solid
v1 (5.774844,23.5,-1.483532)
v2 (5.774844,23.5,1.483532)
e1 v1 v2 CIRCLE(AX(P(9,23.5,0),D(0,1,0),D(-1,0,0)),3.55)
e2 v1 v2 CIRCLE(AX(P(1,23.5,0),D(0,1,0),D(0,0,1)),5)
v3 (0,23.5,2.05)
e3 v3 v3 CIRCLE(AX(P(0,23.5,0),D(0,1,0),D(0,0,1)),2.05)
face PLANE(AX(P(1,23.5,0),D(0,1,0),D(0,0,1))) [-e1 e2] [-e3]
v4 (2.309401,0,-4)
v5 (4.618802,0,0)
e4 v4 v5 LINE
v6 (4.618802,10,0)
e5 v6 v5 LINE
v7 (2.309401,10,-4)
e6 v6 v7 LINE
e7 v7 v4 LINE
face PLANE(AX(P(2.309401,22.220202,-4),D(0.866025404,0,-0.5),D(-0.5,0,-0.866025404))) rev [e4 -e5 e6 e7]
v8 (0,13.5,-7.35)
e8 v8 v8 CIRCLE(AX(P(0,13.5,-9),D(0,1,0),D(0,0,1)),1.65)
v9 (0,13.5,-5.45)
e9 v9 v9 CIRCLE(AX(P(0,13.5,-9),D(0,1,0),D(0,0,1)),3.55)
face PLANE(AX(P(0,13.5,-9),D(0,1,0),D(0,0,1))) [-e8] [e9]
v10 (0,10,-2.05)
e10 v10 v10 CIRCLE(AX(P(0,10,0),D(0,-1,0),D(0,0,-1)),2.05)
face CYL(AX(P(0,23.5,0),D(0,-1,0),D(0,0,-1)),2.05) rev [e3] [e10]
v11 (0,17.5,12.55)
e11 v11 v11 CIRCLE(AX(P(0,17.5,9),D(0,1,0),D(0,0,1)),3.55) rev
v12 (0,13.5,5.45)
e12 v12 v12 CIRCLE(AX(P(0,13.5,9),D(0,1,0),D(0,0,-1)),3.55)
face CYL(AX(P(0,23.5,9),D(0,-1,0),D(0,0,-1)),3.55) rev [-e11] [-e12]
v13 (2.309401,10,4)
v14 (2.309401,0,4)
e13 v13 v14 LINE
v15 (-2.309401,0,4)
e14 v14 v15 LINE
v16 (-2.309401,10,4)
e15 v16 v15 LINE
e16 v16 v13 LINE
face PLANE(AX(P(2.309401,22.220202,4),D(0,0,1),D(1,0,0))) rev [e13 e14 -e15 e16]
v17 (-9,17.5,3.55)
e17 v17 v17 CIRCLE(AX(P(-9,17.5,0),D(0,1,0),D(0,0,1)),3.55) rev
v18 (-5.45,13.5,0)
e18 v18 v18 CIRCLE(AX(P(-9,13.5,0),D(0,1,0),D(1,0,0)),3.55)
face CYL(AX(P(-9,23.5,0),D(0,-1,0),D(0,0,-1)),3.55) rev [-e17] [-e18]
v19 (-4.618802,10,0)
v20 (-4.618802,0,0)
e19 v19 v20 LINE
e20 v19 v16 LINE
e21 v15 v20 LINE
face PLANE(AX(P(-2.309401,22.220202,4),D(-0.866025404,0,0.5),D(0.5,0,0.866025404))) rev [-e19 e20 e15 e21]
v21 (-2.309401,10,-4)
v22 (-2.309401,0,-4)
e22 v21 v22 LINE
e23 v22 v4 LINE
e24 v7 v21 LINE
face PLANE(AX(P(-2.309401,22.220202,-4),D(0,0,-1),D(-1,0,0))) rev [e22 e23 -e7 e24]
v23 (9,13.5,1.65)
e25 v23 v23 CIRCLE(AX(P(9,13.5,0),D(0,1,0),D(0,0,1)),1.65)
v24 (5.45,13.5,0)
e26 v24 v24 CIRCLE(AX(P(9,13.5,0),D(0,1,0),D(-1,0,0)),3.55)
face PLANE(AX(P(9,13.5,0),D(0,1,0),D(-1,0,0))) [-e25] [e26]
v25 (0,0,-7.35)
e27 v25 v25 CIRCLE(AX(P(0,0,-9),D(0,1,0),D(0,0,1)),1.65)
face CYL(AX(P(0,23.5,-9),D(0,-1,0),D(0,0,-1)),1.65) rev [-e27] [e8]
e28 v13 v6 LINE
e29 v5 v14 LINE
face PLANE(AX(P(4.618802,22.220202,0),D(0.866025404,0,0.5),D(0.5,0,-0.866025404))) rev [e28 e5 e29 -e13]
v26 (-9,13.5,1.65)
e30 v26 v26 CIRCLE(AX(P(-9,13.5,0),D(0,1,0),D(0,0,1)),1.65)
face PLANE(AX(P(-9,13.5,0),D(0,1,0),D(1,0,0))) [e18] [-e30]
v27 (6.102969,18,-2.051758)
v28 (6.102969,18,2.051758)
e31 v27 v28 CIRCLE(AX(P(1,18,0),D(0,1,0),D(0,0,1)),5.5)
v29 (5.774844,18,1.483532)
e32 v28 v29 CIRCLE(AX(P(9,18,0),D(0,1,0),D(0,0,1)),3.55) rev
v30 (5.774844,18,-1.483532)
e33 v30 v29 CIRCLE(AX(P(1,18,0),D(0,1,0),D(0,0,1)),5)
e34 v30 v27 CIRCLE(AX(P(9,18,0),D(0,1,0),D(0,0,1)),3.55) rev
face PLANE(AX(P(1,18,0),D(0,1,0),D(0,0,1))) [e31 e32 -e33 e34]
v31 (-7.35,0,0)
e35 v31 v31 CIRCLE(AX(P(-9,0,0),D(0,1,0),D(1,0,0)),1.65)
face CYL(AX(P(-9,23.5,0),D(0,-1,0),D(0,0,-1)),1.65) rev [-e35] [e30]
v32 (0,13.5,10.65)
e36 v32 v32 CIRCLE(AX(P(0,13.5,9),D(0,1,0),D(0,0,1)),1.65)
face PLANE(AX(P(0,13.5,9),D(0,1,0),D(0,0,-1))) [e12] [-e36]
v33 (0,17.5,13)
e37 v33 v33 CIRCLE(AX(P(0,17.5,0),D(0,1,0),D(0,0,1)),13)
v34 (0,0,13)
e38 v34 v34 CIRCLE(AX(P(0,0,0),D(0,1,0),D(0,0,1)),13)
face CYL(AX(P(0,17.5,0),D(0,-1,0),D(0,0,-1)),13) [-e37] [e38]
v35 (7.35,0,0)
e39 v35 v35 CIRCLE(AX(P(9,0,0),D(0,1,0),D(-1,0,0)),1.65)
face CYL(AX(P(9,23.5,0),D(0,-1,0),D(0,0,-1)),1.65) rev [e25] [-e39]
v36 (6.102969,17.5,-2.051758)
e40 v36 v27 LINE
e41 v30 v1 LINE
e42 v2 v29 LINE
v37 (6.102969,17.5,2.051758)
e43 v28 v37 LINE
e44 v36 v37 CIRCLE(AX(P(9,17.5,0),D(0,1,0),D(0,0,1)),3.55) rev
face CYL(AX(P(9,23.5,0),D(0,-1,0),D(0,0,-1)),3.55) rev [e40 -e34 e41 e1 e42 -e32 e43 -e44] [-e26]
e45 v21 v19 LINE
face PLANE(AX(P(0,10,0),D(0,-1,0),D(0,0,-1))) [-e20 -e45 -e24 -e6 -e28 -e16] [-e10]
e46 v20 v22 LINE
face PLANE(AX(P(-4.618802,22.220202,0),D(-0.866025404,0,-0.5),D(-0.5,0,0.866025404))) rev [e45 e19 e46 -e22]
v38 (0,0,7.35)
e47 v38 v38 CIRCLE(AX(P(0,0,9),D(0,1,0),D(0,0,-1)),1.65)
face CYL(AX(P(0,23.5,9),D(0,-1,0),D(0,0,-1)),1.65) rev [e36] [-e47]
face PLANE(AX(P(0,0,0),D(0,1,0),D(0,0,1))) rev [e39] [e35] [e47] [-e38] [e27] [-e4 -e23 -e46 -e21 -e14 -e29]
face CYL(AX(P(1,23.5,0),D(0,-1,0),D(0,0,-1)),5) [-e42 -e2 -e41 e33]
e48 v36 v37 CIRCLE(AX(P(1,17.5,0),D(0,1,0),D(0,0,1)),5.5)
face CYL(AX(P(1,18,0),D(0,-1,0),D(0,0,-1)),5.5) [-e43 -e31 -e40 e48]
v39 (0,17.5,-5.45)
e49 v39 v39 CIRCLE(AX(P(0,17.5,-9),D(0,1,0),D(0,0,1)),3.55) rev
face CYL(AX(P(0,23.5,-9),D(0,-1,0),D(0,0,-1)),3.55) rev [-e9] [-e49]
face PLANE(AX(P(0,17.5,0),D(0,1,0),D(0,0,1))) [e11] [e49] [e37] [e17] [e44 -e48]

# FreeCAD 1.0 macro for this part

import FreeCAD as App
import Part
import Sketcher
from FreeCAD import Vector
Q = App.Units.Quantity


def add_polygon(sketch, points):
    """Adds a closed chain of lines whose ends are joined by coincident constraints."""
    first, n = sketch.GeometryCount, len(points)
    for a, b in zip(points, points[1:] + points[:1]):
        sketch.addGeometry(Part.LineSegment(App.Vector(*a, 0), App.Vector(*b, 0)), False)
    for i in range(n):
        sketch.addConstraint(Sketcher.Constraint("Coincident", first + i, 2, first + (i + 1) % n, 1))

doc = App.newDocument("Part")
params = doc.addObject("Spreadsheet::Sheet", "Params")
for row, (alias, value) in enumerate([
    ("sketch1_diameter", "26 mm"),
    ("pad1_length", "17.5 mm"),
    ("sketch2_diameter", "10 mm"),
    ("pad2_length", "6 mm"),
    ("sketch3_diameter", "11 mm"),
    ("pad3_length", "0.5 mm"),
    ("sketch4_diameter", "3.3 mm"),
    ("sketch5_diameter", "7.1 mm"),
    ("pocket2_length", "11 mm"),
    ("sketch6_diameter", "4.1 mm"),
    ("sketch7_diameter", "5.5 mm"),
    ("pocket4_length", "10 mm"),
    ("pocket5_length", "10 mm"),
], start=1):
    params.set(f"A{row}", alias)
    params.set(f"B{row}", "=" + value)
    params.setAlias(f"B{row}", alias)

body = doc.addObject("PartDesign::Body", "Body")

# Sketch on XZ plane
sketch1 = doc.addObject("Sketcher::SketchObject", "Sketch")
body.addObject(sketch1)
sketch1.AttachmentSupport = (doc.XZ_Plane, [""])
sketch1.MapMode = "FlatFace"
sketch1.addGeometry(Part.Circle(Vector(0, 0, 0), Vector(0, 0, 1), 13), False)
sketch1.addConstraint([
    Sketcher.Constraint("Coincident", 0, 3, -1, 1),
    Sketcher.Constraint("Diameter", 0, 26.0),
])
sketch1.setExpression("Constraints[1]", "Params.sketch1_diameter")
pad1 = doc.addObject("PartDesign::Pad", "Pad")
body.addObject(pad1)
pad1.Profile = sketch1
pad1.setExpression("Length", "Params.pad1_length")
pad1.Reversed = True

# Sketch on XZ plane
sketch2 = doc.addObject("Sketcher::SketchObject", "Sketch001")
body.addObject(sketch2)
sketch2.AttachmentSupport = (doc.XZ_Plane, [""])
sketch2.MapMode = "FlatFace"
sketch2.AttachmentOffset = App.Placement(Vector(0, 0, -17.5), App.Rotation())
sketch2.addGeometry(Part.Circle(Vector(1, 0, 0), Vector(0, 0, 1), 5), False)
sketch2.addConstraint([
    Sketcher.Constraint("PointOnObject", 0, 3, -1),
    Sketcher.Constraint("Diameter", 0, 10.0),
    Sketcher.Constraint("DistanceX", -1, 1, 0, 3, 1.0),
])
sketch2.setExpression("Constraints[1]", "Params.sketch2_diameter")
pad2 = doc.addObject("PartDesign::Pad", "Pad001")
body.addObject(pad2)
pad2.Profile = sketch2
pad2.setExpression("Length", "Params.pad2_length")
pad2.Reversed = True

# Sketch on XZ plane
sketch3 = doc.addObject("Sketcher::SketchObject", "Sketch002")
body.addObject(sketch3)
sketch3.AttachmentSupport = (doc.XZ_Plane, [""])
sketch3.MapMode = "FlatFace"
sketch3.AttachmentOffset = App.Placement(Vector(0, 0, -17.5), App.Rotation())
sketch3.addGeometry(Part.Circle(Vector(1, 0, 0), Vector(0, 0, 1), 6), False)
sketch3.addConstraint([
    Sketcher.Constraint("PointOnObject", 0, 3, -1),
    Sketcher.Constraint("Diameter", 0, 11.0),
    Sketcher.Constraint("DistanceX", -1, 1, 0, 3, 1.0),
])
sketch3.setExpression("Constraints[1]", "Params.sketch3_diameter")
pad3 = doc.addObject("PartDesign::Pad", "Pad002")
body.addObject(pad3)
pad3.Profile = sketch3
pad3.setExpression("Length", "Params.pad3_length")
pad3.Reversed = True

# Sketch on XZ plane
sketch4 = doc.addObject("Sketcher::SketchObject", "Sketch003")
body.addObject(sketch4)
sketch4.AttachmentSupport = (doc.XZ_Plane, [""])
sketch4.MapMode = "FlatFace"
sketch4.addGeometry(Part.Circle(Vector(0, -9, 0), Vector(0, 0, 1), 1.6), False)
sketch4.addConstraint([
    Sketcher.Constraint("PointOnObject", 0, 3, -2),
    Sketcher.Constraint("Diameter", 0, 3.3),
    Sketcher.Constraint("DistanceY", 0, 3, -1, 1, 9.0),
])
sketch4.setExpression("Constraints[1]", "Params.sketch4_diameter")
pocket1 = doc.addObject("PartDesign::Pocket", "Pocket")
body.addObject(pocket1)
pocket1.Profile = sketch4
pocket1.Type = "ThroughAll"

# Sketch on XZ plane
sketch5 = doc.addObject("Sketcher::SketchObject", "Sketch004")
body.addObject(sketch5)
sketch5.AttachmentSupport = (doc.XZ_Plane, [""])
sketch5.MapMode = "FlatFace"
sketch5.AttachmentOffset = App.Placement(Vector(0, 0, -13.5), App.Rotation())
sketch5.addGeometry(Part.Circle(Vector(0, -9, 0), Vector(0, 0, 1), 3.5), False)
sketch5.addConstraint([
    Sketcher.Constraint("PointOnObject", 0, 3, -2),
    Sketcher.Constraint("Diameter", 0, 7.1),
    Sketcher.Constraint("DistanceY", 0, 3, -1, 1, 9.0),
])
sketch5.setExpression("Constraints[1]", "Params.sketch5_diameter")
pocket2 = doc.addObject("PartDesign::Pocket", "Pocket001")
body.addObject(pocket2)
pocket2.Profile = sketch5
pocket2.setExpression("Length", "Params.pocket2_length")
doc.recompute()

polarpattern = doc.addObject("PartDesign::PolarPattern", "PolarPattern")
body.addObject(polarpattern)
polarpattern.Originals = [pocket1, pocket2]
polarpattern.Axis = (doc.Y_Axis, [""])
polarpattern.Angle = 360
polarpattern.Occurrences = 4
body.Tip = polarpattern

# Sketch on XZ plane
sketch6 = doc.addObject("Sketcher::SketchObject", "Sketch005")
body.addObject(sketch6)
sketch6.AttachmentSupport = (doc.XZ_Plane, [""])
sketch6.MapMode = "FlatFace"
sketch6.addGeometry(Part.Circle(Vector(0, 0, 0), Vector(0, 0, 1), 2), False)
sketch6.addConstraint([
    Sketcher.Constraint("Coincident", 0, 3, -1, 1),
    Sketcher.Constraint("Diameter", 0, 4.1),
])
sketch6.setExpression("Constraints[1]", "Params.sketch6_diameter")
pocket3 = doc.addObject("PartDesign::Pocket", "Pocket002")
body.addObject(pocket3)
pocket3.Profile = sketch6
pocket3.Type = "ThroughAll"

# Sketch on XZ plane
sketch7 = doc.addObject("Sketcher::SketchObject", "Sketch006")
body.addObject(sketch7)
sketch7.AttachmentSupport = (doc.XZ_Plane, [""])
sketch7.MapMode = "FlatFace"
sketch7.addGeometry(Part.Circle(Vector(0, 0, 0), Vector(0, 0, 1), 2.8), False)
sketch7.addConstraint([
    Sketcher.Constraint("Coincident", 0, 3, -1, 1),
    Sketcher.Constraint("Diameter", 0, 5.5),
])
sketch7.setExpression("Constraints[1]", "Params.sketch7_diameter")
pocket4 = doc.addObject("PartDesign::Pocket", "Pocket003")
body.addObject(pocket4)
pocket4.Profile = sketch7
pocket4.setExpression("Length", "Params.pocket4_length")

# Sketch on XZ plane
sketch8 = doc.addObject("Sketcher::SketchObject", "Sketch007")
body.addObject(sketch8)
sketch8.AttachmentSupport = (doc.XZ_Plane, [""])
sketch8.MapMode = "FlatFace"
add_polygon(sketch8, [(4.6, 0), (2.3, 4), (-2.3, 4), (-4.6, 0), (-2.3, -4), (2.3, -4)])  # lines 0-5
sketch8.addConstraint([
    Sketcher.Constraint("Horizontal", 1),
    Sketcher.Constraint("Horizontal", 4),
    Sketcher.Constraint("Symmetric", 0, 2, 3, 2, -1, 1),
    Sketcher.Constraint("Symmetric", 2, 2, 5, 2, -1, 1),
    Sketcher.Constraint("PointOnObject", 2, 2, -1),
    Sketcher.Constraint("Parallel", 2, 5),
    Sketcher.Constraint("Vertical", 1, 2, 3, 2),
    Sketcher.Constraint("Angle", 0, Q("120 deg")),
    Sketcher.Constraint("DistanceY", -1, 1, 0, 2, 4.0),
    Sketcher.Constraint("DistanceX", -1, 1, 0, 2, 2.309401),
])
pocket5 = doc.addObject("PartDesign::Pocket", "Pocket004")
body.addObject(pocket5)
pocket5.Profile = sketch8
pocket5.setExpression("Length", "Params.pocket5_length")

doc.recompute()
